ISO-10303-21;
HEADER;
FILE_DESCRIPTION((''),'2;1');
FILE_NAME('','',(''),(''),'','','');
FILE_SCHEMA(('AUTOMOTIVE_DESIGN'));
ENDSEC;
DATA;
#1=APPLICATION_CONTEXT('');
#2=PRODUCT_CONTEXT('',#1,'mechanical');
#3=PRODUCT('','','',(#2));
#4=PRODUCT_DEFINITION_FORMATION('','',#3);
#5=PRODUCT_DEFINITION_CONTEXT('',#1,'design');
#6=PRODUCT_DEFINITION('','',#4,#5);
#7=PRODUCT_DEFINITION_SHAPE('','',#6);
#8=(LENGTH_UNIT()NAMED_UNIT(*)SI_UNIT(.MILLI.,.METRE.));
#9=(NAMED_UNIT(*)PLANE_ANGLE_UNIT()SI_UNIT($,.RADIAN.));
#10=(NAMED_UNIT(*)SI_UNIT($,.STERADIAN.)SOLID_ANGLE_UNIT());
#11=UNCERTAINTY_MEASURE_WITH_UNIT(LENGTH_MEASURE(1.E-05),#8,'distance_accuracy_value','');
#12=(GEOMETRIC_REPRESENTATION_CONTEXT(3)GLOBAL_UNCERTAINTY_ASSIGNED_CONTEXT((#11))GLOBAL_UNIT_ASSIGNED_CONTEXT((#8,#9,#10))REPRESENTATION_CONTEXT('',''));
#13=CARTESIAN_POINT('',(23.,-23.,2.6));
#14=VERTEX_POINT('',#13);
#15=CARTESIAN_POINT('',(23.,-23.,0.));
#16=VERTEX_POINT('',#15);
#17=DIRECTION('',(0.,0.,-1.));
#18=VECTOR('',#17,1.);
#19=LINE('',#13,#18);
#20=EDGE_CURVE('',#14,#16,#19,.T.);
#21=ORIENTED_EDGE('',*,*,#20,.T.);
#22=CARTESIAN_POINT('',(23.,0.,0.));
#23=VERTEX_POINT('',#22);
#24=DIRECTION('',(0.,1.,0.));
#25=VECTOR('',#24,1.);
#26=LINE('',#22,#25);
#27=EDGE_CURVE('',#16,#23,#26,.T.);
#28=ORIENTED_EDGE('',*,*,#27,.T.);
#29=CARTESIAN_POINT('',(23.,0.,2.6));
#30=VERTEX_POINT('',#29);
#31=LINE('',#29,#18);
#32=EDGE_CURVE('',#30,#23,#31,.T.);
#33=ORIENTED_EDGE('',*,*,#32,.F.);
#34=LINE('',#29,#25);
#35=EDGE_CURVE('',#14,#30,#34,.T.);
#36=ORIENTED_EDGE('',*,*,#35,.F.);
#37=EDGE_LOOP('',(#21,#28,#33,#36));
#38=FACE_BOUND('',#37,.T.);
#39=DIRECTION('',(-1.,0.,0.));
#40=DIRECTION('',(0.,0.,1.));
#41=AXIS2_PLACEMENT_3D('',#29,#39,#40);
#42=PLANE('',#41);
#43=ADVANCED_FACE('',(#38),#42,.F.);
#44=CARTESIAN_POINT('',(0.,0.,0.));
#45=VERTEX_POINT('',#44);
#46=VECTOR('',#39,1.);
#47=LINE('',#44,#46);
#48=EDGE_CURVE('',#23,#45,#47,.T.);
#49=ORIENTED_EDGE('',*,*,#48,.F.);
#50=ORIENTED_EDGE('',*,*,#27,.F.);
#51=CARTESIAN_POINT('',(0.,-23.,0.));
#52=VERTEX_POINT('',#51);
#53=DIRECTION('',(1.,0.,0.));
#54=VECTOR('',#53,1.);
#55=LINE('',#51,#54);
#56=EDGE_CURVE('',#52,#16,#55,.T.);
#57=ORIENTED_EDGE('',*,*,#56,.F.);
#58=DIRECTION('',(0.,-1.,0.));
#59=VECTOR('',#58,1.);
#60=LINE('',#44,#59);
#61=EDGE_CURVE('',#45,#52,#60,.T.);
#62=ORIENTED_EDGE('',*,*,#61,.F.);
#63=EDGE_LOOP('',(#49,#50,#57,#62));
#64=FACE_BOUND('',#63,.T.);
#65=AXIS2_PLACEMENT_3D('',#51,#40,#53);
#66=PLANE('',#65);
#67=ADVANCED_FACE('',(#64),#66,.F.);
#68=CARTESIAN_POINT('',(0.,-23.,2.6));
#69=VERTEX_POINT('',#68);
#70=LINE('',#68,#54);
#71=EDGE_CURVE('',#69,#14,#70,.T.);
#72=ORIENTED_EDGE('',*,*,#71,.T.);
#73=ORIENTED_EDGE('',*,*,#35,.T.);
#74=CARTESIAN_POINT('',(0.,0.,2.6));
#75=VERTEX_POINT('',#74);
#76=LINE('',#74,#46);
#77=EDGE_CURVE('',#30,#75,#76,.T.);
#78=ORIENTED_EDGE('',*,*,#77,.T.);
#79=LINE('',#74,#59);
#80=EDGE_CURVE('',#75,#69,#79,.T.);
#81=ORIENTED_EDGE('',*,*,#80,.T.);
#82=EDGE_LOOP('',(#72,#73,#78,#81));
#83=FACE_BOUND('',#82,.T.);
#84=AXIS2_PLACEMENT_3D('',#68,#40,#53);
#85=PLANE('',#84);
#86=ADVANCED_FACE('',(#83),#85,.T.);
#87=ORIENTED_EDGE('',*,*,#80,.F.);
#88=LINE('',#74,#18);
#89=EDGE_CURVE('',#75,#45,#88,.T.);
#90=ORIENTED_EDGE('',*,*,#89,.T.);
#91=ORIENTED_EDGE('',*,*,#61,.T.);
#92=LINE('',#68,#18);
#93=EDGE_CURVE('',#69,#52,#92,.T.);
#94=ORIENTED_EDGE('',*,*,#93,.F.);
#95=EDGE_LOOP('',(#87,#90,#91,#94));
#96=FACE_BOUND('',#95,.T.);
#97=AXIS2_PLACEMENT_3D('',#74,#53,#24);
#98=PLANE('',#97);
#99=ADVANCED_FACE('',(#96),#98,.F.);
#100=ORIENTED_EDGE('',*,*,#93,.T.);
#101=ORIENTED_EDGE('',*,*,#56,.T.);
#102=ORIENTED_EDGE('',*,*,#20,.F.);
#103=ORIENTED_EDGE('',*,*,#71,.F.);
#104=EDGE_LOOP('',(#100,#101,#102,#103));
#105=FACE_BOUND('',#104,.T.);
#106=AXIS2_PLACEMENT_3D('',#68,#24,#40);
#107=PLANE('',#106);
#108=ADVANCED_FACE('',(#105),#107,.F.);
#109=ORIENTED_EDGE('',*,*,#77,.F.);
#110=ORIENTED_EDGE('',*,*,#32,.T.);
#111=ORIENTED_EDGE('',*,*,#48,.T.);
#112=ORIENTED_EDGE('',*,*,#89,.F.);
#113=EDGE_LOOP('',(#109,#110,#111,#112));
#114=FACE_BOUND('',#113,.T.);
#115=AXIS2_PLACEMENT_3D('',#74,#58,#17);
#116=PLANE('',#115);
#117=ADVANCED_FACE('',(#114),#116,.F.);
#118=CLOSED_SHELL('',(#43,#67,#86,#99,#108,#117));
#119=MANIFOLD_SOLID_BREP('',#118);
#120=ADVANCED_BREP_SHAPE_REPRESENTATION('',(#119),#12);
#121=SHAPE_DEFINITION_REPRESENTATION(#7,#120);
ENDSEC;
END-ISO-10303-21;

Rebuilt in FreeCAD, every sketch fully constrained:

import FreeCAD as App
import Part
import Sketcher
from FreeCAD import Vector

doc = App.newDocument("Part")
body = doc.addObject("PartDesign::Body", "Body")

# Sketch on XY plane
sketch1 = doc.addObject("Sketcher::SketchObject", "Sketch")
body.addObject(sketch1)
sketch1.AttachmentSupport = (doc.XY_Plane, [""])
sketch1.MapMode = "FlatFace"
sketch1.addGeometry(Part.LineSegment(Vector(0, 0, 0), Vector(0, -23, 0)), False)
sketch1.addGeometry(Part.LineSegment(Vector(0, -23, 0), Vector(23, -23, 0)), False)
sketch1.addGeometry(Part.LineSegment(Vector(23, -23, 0), Vector(23, 0, 0)), False)
sketch1.addGeometry(Part.LineSegment(Vector(23, 0, 0), Vector(0, 0, 0)), False)
sketch1.addConstraint(Sketcher.Constraint("Coincident", 0, 2, 1, 1))
sketch1.addConstraint(Sketcher.Constraint("Coincident", 1, 2, 2, 1))
sketch1.addConstraint(Sketcher.Constraint("Coincident", 2, 2, 3, 1))
sketch1.addConstraint(Sketcher.Constraint("Coincident", 3, 2, 0, 1))
sketch1.addConstraint(Sketcher.Constraint("Vertical", 0))
sketch1.addConstraint(Sketcher.Constraint("Horizontal", 1))
sketch1.addConstraint(Sketcher.Constraint("Vertical", 2))
sketch1.addConstraint(Sketcher.Constraint("Horizontal", 3))
sketch1.addConstraint(Sketcher.Constraint("Coincident", 3, 2, -1, 1))
sketch1.addConstraint(Sketcher.Constraint("Equal", 3, 0))
sketch1.addConstraint(Sketcher.Constraint("DistanceX", 1, 1, 1, 2, 23.0))
pad1 = doc.addObject("PartDesign::Pad", "Pad")
body.addObject(pad1)
pad1.Profile = sketch1
pad1.Length = 2.6

doc.recompute()
